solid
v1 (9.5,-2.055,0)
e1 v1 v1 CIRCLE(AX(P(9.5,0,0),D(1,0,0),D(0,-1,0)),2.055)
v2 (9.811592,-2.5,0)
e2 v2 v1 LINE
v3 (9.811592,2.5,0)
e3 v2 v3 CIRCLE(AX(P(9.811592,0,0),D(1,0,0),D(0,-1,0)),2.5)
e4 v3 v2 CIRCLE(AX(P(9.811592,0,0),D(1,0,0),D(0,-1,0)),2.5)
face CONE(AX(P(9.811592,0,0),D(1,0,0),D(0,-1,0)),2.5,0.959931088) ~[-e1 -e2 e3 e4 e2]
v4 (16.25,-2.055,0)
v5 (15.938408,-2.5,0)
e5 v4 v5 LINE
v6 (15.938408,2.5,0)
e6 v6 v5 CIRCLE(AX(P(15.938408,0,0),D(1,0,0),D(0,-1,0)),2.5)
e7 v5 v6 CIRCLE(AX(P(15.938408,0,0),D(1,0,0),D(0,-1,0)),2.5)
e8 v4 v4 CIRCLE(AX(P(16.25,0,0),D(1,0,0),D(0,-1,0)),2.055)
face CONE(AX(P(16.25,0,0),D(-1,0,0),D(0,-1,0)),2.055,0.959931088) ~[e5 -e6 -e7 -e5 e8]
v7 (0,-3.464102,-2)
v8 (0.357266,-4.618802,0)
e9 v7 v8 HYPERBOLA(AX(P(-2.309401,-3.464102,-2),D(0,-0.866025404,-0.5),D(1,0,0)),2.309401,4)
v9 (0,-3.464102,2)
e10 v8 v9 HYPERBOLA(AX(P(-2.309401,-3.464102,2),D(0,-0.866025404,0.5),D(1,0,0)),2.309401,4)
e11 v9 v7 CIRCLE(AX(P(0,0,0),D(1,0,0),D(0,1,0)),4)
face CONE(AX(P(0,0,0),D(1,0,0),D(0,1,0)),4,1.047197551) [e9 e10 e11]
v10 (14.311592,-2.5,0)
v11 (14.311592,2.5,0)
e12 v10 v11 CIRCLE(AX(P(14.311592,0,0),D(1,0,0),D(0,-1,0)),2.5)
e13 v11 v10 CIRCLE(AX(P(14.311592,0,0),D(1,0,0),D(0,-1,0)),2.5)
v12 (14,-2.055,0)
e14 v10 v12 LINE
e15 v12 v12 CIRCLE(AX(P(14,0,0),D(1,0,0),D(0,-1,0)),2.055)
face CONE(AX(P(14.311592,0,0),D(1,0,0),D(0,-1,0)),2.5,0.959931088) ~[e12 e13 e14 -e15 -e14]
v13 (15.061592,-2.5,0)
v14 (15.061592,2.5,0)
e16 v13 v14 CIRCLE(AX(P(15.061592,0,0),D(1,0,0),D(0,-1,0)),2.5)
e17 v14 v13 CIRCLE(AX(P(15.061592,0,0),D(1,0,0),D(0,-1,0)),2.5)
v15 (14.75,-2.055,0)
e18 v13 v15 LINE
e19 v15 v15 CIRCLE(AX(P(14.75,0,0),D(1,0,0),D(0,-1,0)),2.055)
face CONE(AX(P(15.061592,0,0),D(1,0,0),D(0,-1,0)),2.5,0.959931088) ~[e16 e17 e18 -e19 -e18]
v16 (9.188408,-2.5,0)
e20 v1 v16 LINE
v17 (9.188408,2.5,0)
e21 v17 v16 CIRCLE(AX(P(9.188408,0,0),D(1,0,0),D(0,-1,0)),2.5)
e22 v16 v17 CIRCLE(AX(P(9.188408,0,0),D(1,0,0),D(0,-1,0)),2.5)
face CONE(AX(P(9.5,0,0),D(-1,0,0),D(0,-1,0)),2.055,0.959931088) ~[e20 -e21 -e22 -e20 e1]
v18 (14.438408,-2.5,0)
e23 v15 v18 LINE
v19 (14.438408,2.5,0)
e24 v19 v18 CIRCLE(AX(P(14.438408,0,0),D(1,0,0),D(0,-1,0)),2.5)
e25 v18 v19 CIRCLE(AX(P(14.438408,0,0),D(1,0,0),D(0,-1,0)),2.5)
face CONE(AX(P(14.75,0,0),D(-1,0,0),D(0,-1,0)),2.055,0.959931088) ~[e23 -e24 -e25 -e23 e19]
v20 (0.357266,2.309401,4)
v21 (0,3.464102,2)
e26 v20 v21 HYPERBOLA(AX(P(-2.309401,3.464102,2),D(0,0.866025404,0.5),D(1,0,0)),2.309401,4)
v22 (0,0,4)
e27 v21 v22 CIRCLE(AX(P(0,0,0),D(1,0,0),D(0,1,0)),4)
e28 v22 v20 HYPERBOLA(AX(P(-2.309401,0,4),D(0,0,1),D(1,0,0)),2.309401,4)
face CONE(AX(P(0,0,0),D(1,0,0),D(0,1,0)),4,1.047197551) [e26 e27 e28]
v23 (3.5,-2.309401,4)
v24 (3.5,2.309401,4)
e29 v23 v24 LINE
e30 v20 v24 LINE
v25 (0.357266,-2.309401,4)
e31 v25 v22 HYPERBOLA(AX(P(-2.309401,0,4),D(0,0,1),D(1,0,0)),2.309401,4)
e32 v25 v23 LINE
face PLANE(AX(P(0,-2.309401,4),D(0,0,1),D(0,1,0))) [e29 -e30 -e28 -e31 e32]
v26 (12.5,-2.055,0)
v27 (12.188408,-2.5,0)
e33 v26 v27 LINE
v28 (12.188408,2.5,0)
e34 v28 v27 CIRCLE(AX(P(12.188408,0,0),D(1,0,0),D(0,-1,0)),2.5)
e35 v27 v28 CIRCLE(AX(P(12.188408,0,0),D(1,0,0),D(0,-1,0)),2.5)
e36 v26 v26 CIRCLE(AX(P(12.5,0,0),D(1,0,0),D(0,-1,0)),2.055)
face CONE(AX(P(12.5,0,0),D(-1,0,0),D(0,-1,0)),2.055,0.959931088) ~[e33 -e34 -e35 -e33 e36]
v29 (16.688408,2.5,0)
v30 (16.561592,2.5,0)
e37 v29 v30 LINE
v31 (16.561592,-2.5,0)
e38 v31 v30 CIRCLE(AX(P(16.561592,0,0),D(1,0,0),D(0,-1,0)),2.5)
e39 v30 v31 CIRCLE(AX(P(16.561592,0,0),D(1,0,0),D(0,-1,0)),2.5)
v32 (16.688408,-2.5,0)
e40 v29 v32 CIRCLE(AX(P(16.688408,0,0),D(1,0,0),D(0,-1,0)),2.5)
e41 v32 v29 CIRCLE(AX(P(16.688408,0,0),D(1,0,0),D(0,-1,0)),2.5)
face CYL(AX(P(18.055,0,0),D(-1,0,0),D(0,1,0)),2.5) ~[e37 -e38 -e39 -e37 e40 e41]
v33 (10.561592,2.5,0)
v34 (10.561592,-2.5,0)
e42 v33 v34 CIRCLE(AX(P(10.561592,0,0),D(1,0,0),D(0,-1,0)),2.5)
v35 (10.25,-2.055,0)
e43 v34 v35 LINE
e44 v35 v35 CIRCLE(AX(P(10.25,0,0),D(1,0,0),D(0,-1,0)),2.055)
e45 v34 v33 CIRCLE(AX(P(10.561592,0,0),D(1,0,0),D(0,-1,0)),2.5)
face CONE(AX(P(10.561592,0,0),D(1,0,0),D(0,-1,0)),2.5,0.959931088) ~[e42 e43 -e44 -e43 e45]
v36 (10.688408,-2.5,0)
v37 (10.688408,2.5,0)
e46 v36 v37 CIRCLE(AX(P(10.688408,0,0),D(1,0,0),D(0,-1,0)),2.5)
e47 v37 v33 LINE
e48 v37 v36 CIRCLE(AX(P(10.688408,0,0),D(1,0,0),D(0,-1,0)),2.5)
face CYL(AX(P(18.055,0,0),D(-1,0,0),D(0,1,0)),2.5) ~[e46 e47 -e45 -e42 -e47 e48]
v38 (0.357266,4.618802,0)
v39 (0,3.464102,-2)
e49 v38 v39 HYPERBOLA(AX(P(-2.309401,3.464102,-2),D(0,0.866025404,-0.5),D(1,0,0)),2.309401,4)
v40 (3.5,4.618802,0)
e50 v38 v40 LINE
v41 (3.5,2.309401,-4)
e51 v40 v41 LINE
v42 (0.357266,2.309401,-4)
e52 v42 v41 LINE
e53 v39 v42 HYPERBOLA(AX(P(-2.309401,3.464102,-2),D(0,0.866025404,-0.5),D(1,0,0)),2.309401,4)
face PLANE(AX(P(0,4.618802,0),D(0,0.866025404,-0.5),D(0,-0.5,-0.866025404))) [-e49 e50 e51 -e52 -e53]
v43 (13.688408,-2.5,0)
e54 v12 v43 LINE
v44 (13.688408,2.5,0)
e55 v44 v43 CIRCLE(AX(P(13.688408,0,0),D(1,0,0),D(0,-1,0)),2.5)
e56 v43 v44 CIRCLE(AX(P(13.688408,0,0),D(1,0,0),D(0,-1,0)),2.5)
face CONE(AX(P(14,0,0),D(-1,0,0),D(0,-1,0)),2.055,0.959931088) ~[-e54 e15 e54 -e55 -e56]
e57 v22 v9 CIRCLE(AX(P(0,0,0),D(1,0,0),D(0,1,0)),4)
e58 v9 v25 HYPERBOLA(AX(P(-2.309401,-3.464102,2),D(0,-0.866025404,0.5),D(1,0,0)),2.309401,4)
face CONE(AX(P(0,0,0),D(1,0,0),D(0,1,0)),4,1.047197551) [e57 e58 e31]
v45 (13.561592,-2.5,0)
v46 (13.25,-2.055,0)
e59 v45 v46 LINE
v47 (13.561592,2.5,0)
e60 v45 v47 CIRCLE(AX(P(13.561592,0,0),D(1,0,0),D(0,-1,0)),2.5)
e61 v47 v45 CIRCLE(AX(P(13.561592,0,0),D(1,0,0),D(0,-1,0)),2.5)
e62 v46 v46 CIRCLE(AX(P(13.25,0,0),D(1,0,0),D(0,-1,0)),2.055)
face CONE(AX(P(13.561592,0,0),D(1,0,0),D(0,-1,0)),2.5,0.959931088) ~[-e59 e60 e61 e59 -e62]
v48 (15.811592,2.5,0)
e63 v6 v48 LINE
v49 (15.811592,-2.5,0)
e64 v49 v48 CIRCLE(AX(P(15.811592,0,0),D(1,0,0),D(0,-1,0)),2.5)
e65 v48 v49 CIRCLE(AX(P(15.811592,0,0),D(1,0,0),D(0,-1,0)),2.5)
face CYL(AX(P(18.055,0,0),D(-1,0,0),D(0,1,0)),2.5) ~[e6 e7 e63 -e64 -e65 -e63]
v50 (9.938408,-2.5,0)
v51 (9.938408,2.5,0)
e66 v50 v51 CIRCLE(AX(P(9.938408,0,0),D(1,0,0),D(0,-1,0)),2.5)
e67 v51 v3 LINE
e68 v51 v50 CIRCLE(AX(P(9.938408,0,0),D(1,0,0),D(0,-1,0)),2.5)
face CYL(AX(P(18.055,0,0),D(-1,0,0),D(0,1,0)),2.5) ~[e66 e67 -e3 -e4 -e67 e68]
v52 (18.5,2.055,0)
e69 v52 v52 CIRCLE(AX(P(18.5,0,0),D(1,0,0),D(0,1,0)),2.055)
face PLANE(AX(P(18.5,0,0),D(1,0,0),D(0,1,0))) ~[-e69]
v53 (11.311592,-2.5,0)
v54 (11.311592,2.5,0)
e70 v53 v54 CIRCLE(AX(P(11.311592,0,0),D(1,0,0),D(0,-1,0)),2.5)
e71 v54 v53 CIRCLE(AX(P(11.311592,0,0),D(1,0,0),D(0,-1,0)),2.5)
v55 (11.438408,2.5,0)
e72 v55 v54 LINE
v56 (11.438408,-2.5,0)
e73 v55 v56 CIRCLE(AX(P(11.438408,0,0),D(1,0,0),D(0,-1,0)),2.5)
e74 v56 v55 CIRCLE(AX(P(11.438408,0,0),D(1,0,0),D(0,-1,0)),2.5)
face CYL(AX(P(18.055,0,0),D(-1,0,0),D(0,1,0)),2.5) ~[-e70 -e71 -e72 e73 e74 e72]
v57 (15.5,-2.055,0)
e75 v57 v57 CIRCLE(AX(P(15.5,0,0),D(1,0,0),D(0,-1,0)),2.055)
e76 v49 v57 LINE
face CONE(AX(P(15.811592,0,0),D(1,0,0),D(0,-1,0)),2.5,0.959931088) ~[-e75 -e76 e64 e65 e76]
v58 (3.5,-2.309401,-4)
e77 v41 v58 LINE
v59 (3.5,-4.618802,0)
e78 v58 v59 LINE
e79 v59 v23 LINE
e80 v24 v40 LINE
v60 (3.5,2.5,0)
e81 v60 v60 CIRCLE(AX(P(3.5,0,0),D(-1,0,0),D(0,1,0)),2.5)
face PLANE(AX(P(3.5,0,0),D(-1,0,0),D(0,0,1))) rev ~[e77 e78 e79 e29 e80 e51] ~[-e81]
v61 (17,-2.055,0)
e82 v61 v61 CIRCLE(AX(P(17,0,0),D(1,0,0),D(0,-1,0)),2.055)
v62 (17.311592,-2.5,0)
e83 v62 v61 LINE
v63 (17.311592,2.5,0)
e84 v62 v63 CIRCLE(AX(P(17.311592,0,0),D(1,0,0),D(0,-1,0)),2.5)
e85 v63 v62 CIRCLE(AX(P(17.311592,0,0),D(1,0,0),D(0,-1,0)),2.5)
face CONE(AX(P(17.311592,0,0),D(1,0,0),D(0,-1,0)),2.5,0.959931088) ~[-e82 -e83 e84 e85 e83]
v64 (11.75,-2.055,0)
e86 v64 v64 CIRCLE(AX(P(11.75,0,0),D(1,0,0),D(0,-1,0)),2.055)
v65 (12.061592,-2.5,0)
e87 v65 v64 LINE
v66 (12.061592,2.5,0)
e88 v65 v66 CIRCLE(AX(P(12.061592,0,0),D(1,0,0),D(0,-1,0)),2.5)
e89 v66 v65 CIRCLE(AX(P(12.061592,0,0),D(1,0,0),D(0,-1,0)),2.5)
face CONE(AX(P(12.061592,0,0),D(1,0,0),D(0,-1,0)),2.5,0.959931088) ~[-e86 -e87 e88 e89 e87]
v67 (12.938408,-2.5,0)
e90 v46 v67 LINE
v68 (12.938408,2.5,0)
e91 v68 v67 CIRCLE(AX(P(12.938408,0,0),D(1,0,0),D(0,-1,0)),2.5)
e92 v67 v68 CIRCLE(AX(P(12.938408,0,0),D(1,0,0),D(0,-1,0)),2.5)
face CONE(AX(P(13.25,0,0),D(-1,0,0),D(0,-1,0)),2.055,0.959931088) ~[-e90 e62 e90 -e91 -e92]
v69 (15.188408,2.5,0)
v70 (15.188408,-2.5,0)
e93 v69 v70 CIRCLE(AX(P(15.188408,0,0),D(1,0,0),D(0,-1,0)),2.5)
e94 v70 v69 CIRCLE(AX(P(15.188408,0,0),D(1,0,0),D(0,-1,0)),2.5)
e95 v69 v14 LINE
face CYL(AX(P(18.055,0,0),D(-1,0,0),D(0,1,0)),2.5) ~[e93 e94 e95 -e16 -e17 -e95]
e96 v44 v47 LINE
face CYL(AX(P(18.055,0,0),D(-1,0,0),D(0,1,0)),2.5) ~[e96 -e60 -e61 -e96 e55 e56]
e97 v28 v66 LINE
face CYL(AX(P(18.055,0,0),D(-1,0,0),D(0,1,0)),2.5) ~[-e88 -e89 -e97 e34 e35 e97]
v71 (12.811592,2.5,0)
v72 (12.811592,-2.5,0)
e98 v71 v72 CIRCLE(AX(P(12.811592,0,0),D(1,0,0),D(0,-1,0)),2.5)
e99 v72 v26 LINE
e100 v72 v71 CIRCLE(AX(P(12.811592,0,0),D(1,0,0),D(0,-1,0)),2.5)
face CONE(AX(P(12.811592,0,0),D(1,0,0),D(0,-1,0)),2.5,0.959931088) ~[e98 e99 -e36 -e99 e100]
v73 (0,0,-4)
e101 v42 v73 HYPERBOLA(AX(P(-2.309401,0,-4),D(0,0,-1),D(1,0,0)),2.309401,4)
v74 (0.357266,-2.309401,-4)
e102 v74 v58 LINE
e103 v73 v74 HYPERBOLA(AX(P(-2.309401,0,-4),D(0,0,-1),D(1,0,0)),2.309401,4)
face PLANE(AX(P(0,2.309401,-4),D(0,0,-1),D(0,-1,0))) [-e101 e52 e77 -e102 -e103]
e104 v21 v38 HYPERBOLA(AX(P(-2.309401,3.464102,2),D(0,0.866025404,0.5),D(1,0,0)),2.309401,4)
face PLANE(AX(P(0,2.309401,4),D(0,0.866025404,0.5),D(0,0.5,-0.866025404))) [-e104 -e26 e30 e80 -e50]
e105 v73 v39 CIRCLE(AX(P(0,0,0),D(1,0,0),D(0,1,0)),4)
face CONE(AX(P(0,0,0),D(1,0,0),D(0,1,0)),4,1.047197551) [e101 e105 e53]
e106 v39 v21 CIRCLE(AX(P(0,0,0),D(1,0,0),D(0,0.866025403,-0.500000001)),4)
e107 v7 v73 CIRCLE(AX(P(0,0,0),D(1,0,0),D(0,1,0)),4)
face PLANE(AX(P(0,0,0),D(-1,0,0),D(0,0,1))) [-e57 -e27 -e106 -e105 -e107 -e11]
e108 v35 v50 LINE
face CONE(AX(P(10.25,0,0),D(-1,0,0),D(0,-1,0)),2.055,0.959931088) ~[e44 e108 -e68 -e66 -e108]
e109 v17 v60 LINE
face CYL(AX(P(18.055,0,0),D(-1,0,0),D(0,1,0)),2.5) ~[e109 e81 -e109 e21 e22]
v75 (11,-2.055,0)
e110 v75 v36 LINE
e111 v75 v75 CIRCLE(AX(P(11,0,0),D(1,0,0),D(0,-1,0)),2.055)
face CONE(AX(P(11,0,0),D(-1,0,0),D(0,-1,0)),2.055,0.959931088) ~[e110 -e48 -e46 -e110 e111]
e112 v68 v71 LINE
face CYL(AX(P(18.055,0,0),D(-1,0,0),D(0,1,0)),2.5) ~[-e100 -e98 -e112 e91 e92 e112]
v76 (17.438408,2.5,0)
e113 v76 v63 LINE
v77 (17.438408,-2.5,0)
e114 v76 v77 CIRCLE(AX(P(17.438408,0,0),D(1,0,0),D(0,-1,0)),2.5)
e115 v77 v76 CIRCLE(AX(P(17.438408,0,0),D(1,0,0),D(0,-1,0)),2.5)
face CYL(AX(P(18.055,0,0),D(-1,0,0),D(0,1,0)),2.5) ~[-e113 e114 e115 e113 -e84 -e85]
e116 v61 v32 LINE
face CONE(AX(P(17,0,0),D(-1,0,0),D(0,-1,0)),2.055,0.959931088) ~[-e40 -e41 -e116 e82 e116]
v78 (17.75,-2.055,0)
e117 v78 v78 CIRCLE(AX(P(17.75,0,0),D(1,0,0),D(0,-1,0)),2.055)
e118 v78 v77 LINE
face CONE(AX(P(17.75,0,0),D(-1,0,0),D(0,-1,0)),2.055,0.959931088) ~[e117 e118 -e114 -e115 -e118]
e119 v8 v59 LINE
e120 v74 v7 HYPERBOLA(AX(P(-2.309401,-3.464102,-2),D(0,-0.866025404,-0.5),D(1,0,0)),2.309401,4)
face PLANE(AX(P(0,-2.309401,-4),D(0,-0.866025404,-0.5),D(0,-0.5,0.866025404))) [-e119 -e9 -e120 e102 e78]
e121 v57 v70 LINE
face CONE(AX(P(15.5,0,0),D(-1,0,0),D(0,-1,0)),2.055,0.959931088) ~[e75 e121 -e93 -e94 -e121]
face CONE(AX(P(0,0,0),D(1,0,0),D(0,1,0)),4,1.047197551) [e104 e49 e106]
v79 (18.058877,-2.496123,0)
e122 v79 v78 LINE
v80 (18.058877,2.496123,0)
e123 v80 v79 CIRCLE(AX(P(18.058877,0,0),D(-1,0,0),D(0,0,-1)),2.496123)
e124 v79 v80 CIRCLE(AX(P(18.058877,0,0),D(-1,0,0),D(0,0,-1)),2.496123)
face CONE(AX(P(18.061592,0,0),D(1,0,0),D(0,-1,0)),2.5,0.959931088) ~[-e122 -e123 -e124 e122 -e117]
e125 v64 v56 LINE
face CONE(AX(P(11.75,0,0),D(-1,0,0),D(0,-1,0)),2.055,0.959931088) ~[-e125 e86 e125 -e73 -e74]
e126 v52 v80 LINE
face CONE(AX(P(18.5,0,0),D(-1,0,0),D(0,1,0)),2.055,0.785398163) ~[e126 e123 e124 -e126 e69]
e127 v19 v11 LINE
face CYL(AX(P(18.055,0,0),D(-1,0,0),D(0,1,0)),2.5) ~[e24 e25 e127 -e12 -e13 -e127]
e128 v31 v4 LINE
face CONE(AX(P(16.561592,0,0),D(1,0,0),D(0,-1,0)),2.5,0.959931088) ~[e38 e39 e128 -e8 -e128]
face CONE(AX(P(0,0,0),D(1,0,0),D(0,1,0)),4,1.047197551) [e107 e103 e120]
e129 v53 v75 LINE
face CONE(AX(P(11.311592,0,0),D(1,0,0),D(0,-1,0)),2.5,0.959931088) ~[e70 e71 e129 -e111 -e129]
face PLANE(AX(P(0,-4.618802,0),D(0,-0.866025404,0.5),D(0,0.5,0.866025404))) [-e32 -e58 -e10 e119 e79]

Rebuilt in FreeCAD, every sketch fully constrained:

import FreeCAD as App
import Part
import Sketcher

V = App.Vector
Q = App.Units.Quantity


def add_polygon(sketch, points):
    """Adds a closed chain of lines whose ends are joined by coincident constraints."""
    first, n = sketch.GeometryCount, len(points)
    for a, b in zip(points, points[1:] + points[:1]):
        sketch.addGeometry(Part.LineSegment(App.Vector(*a, 0), App.Vector(*b, 0)), False)
    for i in range(n):
        sketch.addConstraint(Sketcher.Constraint("Coincident", first + i, 2, first + (i + 1) % n, 1))

doc = App.newDocument("Part")
body = doc.addObject("PartDesign::Body", "Body")

sketch1 = body.newObject("Sketcher::SketchObject", "Sketch")
sketch1.AttachmentSupport = (doc.getObject("YZ_Plane"), [""])
sketch1.MapMode = "FlatFace"
add_polygon(sketch1, [(-2.3, -4), (2.3, -4), (4.6, 0), (2.3, 4), (-2.3, 4), (-4.6, 0)])
sketch1.addConstraint([
    Sketcher.Constraint("Horizontal", 0),
    Sketcher.Constraint("Horizontal", 3),
    Sketcher.Constraint("Symmetric", 0, 2, 3, 2, -1, 1),
    Sketcher.Constraint("Symmetric", 1, 2, 4, 2, -1, 1),
    Sketcher.Constraint("PointOnObject", 1, 2, -1),
    Sketcher.Constraint("Parallel", 2, 5),
    Sketcher.Constraint("Vertical", 0, 2, 2, 2),
    Sketcher.Constraint("Angle", 1, Q("60 deg")),
    Sketcher.Constraint("DistanceY", 0, 2, -1, 1, Q("4 mm")),
    Sketcher.Constraint("DistanceX", -1, 1, 0, 2, Q("2.309401 mm")),
])
pad1 = body.newObject("PartDesign::Pad", "Pad")
pad1.Profile = sketch1
pad1.Length = 3.5

sketch2 = body.newObject("Sketcher::SketchObject", "Sketch001")
sketch2.AttachmentSupport = (doc.getObject("XY_Plane"), [""])
sketch2.MapMode = "FlatFace"
add_polygon(sketch2, [(0, 0), (18.5, 0), (18.5, 2.1), (18.1, 2.5), (0, 2.5)])
sketch2.addConstraint([
    Sketcher.Constraint("Horizontal", 0),
    Sketcher.Constraint("Vertical", 1),
    Sketcher.Constraint("Horizontal", 3),
    Sketcher.Constraint("Vertical", 4),
    Sketcher.Constraint("Coincident", 4, 2, -1, 1),
    Sketcher.Constraint("Angle", 2, Q("135 deg")),
    Sketcher.Constraint("DistanceX", 0, 1, 0, 2, Q("18.5 mm")),
    Sketcher.Constraint("DistanceY", 4, 2, 4, 1, Q("2.5 mm")),
    Sketcher.Constraint("DistanceX", 3, 2, 3, 1, Q("18.055 mm")),
])
revolution = body.newObject("PartDesign::Revolution", "Revolution")
revolution.Profile = sketch2
revolution.ReferenceAxis = (sketch2, ["H_Axis"])
revolution.Angle = 360

sketch3 = body.newObject("Sketcher::SketchObject", "Sketch002")
sketch3.AttachmentSupport = (doc.getObject("XY_Plane"), [""])
sketch3.MapMode = "FlatFace"
add_polygon(sketch3, [(0, 4), (3, 10), (3, 15), (-10, 15), (-10, 4)])
sketch3.addConstraint([
    Sketcher.Constraint("Vertical", 1),
    Sketcher.Constraint("Horizontal", 2),
    Sketcher.Constraint("Vertical", 3),
    Sketcher.Constraint("Horizontal", 4),
    Sketcher.Constraint("PointOnObject", 4, 2, -2),
    Sketcher.Constraint("DistanceX", 4, 1, 4, 2, Q("10 mm")),
    Sketcher.Constraint("DistanceY", 1, 1, 1, 2, Q("5 mm")),
    Sketcher.Constraint("Angle", 0, Q("60 deg")),
    Sketcher.Constraint("DistanceY", -1, 1, 3, 2, Q("4 mm")),
    Sketcher.Constraint("DistanceX", 2, 2, 2, 1, Q("13.244017 mm")),
])
groove = body.newObject("PartDesign::Groove", "Groove")
groove.Profile = sketch3
groove.ReferenceAxis = (sketch3, ["H_Axis"])
groove.Angle = 360

sketch4 = body.newObject("Sketcher::SketchObject", "Sketch003")
sketch4.AttachmentSupport = (doc.getObject("XY_Plane"), [""])
sketch4.MapMode = "FlatFace"
add_polygon(sketch4, [(9.5, -2.1), (9.2, -2.5), (9.2, -3.1), (9.8, -3.1), (9.8, -2.5)])
sketch4.addConstraint([
    Sketcher.Constraint("Vertical", 1),
    Sketcher.Constraint("Horizontal", 2),
    Sketcher.Constraint("Vertical", 3),
    Sketcher.Constraint("Horizontal", 0, 2, 3, 2),
    Sketcher.Constraint("Equal", 0, 4),
    Sketcher.Constraint("Angle", 0, Q("-125 deg")),
    Sketcher.Constraint("DistanceY", 0, 2, -1, 1, Q("2.5 mm")),
    Sketcher.Constraint("DistanceX", -1, 1, 4, 2, Q("9.5 mm")),
    Sketcher.Constraint("DistanceY", 1, 2, 1, 1, Q("0.625 mm")),
    Sketcher.Constraint("DistanceY", 1, 2, 4, 2, Q("1.07 mm")),
])
groove2 = body.newObject("PartDesign::Groove", "Groove001")
groove2.Profile = sketch4
groove2.ReferenceAxis = (sketch4, ["H_Axis"])
groove2.Angle = 360
doc.recompute()

linearpattern = body.newObject("PartDesign::LinearPattern", "LinearPattern")
linearpattern.Originals = [groove2]
linearpattern.Direction = (doc.getObject("X_Axis"), [""])
linearpattern.Mode = "offset"
linearpattern.Offset = 0.75
linearpattern.Occurrences = 12
body.Tip = linearpattern

doc.recompute()
